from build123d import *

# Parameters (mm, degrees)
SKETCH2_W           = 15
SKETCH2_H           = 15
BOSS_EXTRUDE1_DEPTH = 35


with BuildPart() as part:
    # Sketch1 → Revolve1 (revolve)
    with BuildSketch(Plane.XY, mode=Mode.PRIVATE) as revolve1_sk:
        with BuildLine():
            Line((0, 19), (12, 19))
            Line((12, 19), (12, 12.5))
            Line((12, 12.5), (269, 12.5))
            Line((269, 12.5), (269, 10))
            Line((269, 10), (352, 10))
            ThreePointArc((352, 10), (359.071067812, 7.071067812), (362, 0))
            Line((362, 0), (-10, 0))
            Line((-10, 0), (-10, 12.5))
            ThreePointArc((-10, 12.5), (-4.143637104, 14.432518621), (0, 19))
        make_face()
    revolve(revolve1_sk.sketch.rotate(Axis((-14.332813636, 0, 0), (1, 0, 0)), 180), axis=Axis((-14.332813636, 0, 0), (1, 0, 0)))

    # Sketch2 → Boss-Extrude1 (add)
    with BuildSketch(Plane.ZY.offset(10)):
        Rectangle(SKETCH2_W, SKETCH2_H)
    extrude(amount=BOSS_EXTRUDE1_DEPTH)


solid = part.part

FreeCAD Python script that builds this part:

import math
import FreeCAD as App
import Part
import Sketcher

doc = App.newDocument("Part")
body = doc.addObject("PartDesign::Body", "Body")

# Sketch on XY plane
sketch1 = body.newObject("Sketcher::SketchObject", "Sketch")
sketch1.AttachmentSupport = (doc.getObject("XY_Plane"), [""])
sketch1.MapMode = "FlatFace"
sketch1.addGeometry([
    Part.LineSegment(App.Vector(12, 19, 0), App.Vector(0, 19, 0)),  # 0
    Part.ArcOfCircle(Part.Circle(App.Vector(-10.7, 24.6, 0), App.Vector(0, 0, 1), 12.1), math.radians(-86), math.radians(-27)),  # 1
    Part.LineSegment(App.Vector(-10, 12.5, 0), App.Vector(-10, 0, 0)),  # 2
    Part.LineSegment(App.Vector(-10, 0, 0), App.Vector(362, 0, 0)),  # 3
    Part.ArcOfCircle(Part.Circle(App.Vector(352, 0, 0), App.Vector(0, 0, 1), 10), math.radians(0), math.radians(90)),  # 4
    Part.LineSegment(App.Vector(352, 10, 0), App.Vector(269, 10, 0)),  # 5
    Part.LineSegment(App.Vector(269, 10, 0), App.Vector(269, 12.5, 0)),  # 6
    Part.LineSegment(App.Vector(269, 12.5, 0), App.Vector(12, 12.5, 0)),  # 7
    Part.LineSegment(App.Vector(12, 12.5, 0), App.Vector(12, 19, 0)),  # 8
], False)
sketch1.addConstraint([
    Sketcher.Constraint("Coincident", 0, 2, 1, 2),
    Sketcher.Constraint("Coincident", 1, 1, 2, 1),
    Sketcher.Constraint("Coincident", 2, 2, 3, 1),
    Sketcher.Constraint("Coincident", 3, 2, 4, 1),
    Sketcher.Constraint("Tangent", 4, 2, 5, 1),
    Sketcher.Constraint("Coincident", 5, 2, 6, 1),
    Sketcher.Constraint("Coincident", 6, 2, 7, 1),
    Sketcher.Constraint("Coincident", 7, 2, 8, 1),
    Sketcher.Constraint("Coincident", 8, 2, 0, 1),
    Sketcher.Constraint("Horizontal", 0),
    Sketcher.Constraint("Vertical", 2),
    Sketcher.Constraint("Horizontal", 3),
    Sketcher.Constraint("Horizontal", 5),
    Sketcher.Constraint("Vertical", 6),
    Sketcher.Constraint("Horizontal", 7),
    Sketcher.Constraint("Vertical", 8),
    Sketcher.Constraint("PointOnObject", 4, 3, -1),
    Sketcher.Constraint("PointOnObject", 0, 2, -2),
    Sketcher.Constraint("PointOnObject", 2, 2, -1),
    Sketcher.Constraint("Horizontal", 1, 1, 6, 2),
    Sketcher.Constraint("Radius", 4, 10.0),
    Sketcher.Constraint("DistanceX", 0, 2, 0, 1, 12.0),
    Sketcher.Constraint("DistanceX", 3, 1, 3, 2, 372.0),
    Sketcher.Constraint("DistanceX", 5, 2, 5, 1, 83.0),
    Sketcher.Constraint("DistanceX", 7, 2, 7, 1, 257.0),
    Sketcher.Constraint("DistanceY", 2, 2, 2, 1, 12.5),
    Sketcher.Constraint("DistanceY", 8, 1, 8, 2, 6.5),
    Sketcher.Constraint("Radius", 1, 12.101638),
])
revolution = body.newObject("PartDesign::Revolution", "Revolution")
revolution.Profile = sketch1
revolution.ReferenceAxis = (sketch1, ["H_Axis"])
revolution.Angle = 360

# Sketch on YZ plane
sketch2 = body.newObject("Sketcher::SketchObject", "Sketch001")
sketch2.AttachmentSupport = (doc.getObject("YZ_Plane"), [""])
sketch2.MapMode = "FlatFace"
sketch2.AttachmentOffset = App.Placement(App.Vector(0, 0, -10), App.Rotation())
sketch2.addGeometry([
    Part.LineSegment(App.Vector(8, -8, 0), App.Vector(-8, -8, 0)),
    Part.LineSegment(App.Vector(-8, -8, 0), App.Vector(-8, 8, 0)),
    Part.LineSegment(App.Vector(-8, 8, 0), App.Vector(8, 8, 0)),
    Part.LineSegment(App.Vector(8, 8, 0), App.Vector(8, -8, 0)),
], False)
sketch2.addConstraint([
    Sketcher.Constraint("Coincident", 0, 2, 1, 1),
    Sketcher.Constraint("Coincident", 1, 2, 2, 1),
    Sketcher.Constraint("Coincident", 2, 2, 3, 1),
    Sketcher.Constraint("Coincident", 3, 2, 0, 1),
    Sketcher.Constraint("Horizontal", 0),
    Sketcher.Constraint("Vertical", 1),
    Sketcher.Constraint("Horizontal", 2),
    Sketcher.Constraint("Vertical", 3),
    Sketcher.Constraint("Symmetric", 0, 2, 2, 2, -1, 1),
    Sketcher.Constraint("Equal", 2, 1),
    Sketcher.Constraint("DistanceX", 0, 2, 0, 1, 15.0),
])
pad1 = body.newObject("PartDesign::Pad", "Pad")
pad1.Profile = sketch2
pad1.Length = 35
pad1.Reversed = True

doc.recompute()
